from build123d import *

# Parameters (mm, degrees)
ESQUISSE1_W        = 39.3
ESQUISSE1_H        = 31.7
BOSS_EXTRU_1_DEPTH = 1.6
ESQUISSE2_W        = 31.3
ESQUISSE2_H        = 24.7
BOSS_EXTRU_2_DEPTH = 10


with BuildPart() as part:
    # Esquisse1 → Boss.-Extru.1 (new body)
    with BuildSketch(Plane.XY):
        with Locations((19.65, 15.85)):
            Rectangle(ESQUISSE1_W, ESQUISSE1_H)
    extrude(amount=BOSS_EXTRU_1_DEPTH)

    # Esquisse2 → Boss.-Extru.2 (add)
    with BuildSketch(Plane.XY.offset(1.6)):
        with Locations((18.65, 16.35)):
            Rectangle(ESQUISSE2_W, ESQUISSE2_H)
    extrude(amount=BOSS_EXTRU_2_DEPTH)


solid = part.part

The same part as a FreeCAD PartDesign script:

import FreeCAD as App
import Part
import Sketcher

V = App.Vector
Q = App.Units.Quantity


def add_polygon(sketch, points):
    """Adds a closed chain of lines whose ends are joined by coincident constraints."""
    first, n = sketch.GeometryCount, len(points)
    for a, b in zip(points, points[1:] + points[:1]):
        sketch.addGeometry(Part.LineSegment(App.Vector(*a, 0), App.Vector(*b, 0)), False)
    for i in range(n):
        sketch.addConstraint(Sketcher.Constraint("Coincident", first + i, 2, first + (i + 1) % n, 1))

doc = App.newDocument("Part")
body = doc.addObject("PartDesign::Body", "Body")

sketch1 = body.newObject("Sketcher::SketchObject", "Sketch")
sketch1.AttachmentSupport = (doc.getObject("XY_Plane"), [""])
sketch1.MapMode = "FlatFace"
add_polygon(sketch1, [(0, 32), (0, 0), (39, 0), (39, 32)])
sketch1.addConstraint([
    Sketcher.Constraint("Vertical", 0),
    Sketcher.Constraint("Horizontal", 1),
    Sketcher.Constraint("Vertical", 2),
    Sketcher.Constraint("Horizontal", 3),
    Sketcher.Constraint("Coincident", 0, 2, -1, 1),
    Sketcher.Constraint("DistanceX", 1, 1, 1, 2, Q("39.3 mm")),
    Sketcher.Constraint("DistanceY", 0, 2, 0, 1, Q("31.7 mm")),
])
pad1 = body.newObject("PartDesign::Pad", "Pad")
pad1.Profile = sketch1
pad1.Length = 1.6

sketch2 = body.newObject("Sketcher::SketchObject", "Sketch001")
sketch2.AttachmentSupport = (doc.getObject("XY_Plane"), [""])
sketch2.MapMode = "FlatFace"
sketch2.AttachmentOffset = App.Placement(V(0, 0, 1.6), App.Rotation())
add_polygon(sketch2, [(3, 29), (3, 4), (34, 4), (34, 29)])
sketch2.addConstraint([
    Sketcher.Constraint("Vertical", 0),
    Sketcher.Constraint("Horizontal", 1),
    Sketcher.Constraint("Vertical", 2),
    Sketcher.Constraint("Horizontal", 3),
    Sketcher.Constraint("DistanceX", 1, 1, 1, 2, Q("31.3 mm")),
    Sketcher.Constraint("DistanceY", 0, 2, 0, 1, Q("24.7 mm")),
    Sketcher.Constraint("DistanceX", -1, 1, 0, 2, Q("3 mm")),
    Sketcher.Constraint("DistanceY", -1, 1, 0, 2, Q("4 mm")),
])
pad2 = body.newObject("PartDesign::Pad", "Pad001")
pad2.Profile = sketch2
pad2.Length = 10

doc.recompute()
